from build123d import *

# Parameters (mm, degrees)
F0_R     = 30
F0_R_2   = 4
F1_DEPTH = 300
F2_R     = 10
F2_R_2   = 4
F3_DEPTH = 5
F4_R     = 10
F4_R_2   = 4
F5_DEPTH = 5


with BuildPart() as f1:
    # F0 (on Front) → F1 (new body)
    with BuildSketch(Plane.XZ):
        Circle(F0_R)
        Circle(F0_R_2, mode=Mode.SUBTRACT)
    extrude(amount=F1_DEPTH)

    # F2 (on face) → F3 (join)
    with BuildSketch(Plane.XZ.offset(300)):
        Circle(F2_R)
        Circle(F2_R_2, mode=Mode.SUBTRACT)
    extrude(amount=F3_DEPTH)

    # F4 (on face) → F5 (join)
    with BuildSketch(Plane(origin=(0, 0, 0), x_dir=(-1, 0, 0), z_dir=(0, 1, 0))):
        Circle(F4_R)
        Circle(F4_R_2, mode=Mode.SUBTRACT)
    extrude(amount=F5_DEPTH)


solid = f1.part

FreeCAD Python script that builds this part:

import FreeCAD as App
import Part
import Sketcher

V = App.Vector
Q = App.Units.Quantity

doc = App.newDocument("Part")
body = doc.addObject("PartDesign::Body", "Body")

# Sketch on XZ plane
sketch1 = body.newObject("Sketcher::SketchObject", "Sketch")
sketch1.AttachmentSupport = (doc.getObject("XZ_Plane"), [""])
sketch1.MapMode = "FlatFace"
sketch1.addGeometry([
    Part.Circle(V(0, 0, 0), V(0, 0, 1), 30),
    Part.Circle(V(0, 0, 0), V(0, 0, 1), 4),
], False)
sketch1.addConstraint([
    Sketcher.Constraint("Coincident", 0, 3, -1, 1),
    Sketcher.Constraint("Coincident", 1, 3, -1, 1),
    Sketcher.Constraint("Diameter", 0, Q("60 mm")),
    Sketcher.Constraint("Diameter", 1, Q("8 mm")),
])
pad1 = body.newObject("PartDesign::Pad", "Pad")
pad1.Profile = sketch1
pad1.Length = 300

# Sketch on XZ plane
sketch2 = body.newObject("Sketcher::SketchObject", "Sketch001")
sketch2.AttachmentSupport = (doc.getObject("XZ_Plane"), [""])
sketch2.MapMode = "FlatFace"
sketch2.AttachmentOffset = App.Placement(V(0, 0, 300), App.Rotation())
sketch2.addGeometry([
    Part.Circle(V(0, 0, 0), V(0, 0, 1), 10),
    Part.Circle(V(0, 0, 0), V(0, 0, 1), 4),
], False)
sketch2.addConstraint([
    Sketcher.Constraint("Coincident", 0, 3, -1, 1),
    Sketcher.Constraint("Coincident", 1, 3, -1, 1),
    Sketcher.Constraint("Diameter", 0, Q("20 mm")),
    Sketcher.Constraint("Diameter", 1, Q("8 mm")),
])
pad2 = body.newObject("PartDesign::Pad", "Pad001")
pad2.Profile = sketch2
pad2.Length = 5

# Sketch on XZ plane
sketch3 = body.newObject("Sketcher::SketchObject", "Sketch002")
sketch3.AttachmentSupport = (doc.getObject("XZ_Plane"), [""])
sketch3.MapMode = "FlatFace"
sketch3.addGeometry([
    Part.Circle(V(0, 0, 0), V(0, 0, 1), 10),
    Part.Circle(V(0, 0, 0), V(0, 0, 1), 4),
], False)
sketch3.addConstraint([
    Sketcher.Constraint("Coincident", 0, 3, -1, 1),
    Sketcher.Constraint("Coincident", 1, 3, -1, 1),
    Sketcher.Constraint("Diameter", 0, Q("20 mm")),
    Sketcher.Constraint("Diameter", 1, Q("8 mm")),
])
pad3 = body.newObject("PartDesign::Pad", "Pad002")
pad3.Profile = sketch3
pad3.Length = 5
pad3.Reversed = True

doc.recompute()
